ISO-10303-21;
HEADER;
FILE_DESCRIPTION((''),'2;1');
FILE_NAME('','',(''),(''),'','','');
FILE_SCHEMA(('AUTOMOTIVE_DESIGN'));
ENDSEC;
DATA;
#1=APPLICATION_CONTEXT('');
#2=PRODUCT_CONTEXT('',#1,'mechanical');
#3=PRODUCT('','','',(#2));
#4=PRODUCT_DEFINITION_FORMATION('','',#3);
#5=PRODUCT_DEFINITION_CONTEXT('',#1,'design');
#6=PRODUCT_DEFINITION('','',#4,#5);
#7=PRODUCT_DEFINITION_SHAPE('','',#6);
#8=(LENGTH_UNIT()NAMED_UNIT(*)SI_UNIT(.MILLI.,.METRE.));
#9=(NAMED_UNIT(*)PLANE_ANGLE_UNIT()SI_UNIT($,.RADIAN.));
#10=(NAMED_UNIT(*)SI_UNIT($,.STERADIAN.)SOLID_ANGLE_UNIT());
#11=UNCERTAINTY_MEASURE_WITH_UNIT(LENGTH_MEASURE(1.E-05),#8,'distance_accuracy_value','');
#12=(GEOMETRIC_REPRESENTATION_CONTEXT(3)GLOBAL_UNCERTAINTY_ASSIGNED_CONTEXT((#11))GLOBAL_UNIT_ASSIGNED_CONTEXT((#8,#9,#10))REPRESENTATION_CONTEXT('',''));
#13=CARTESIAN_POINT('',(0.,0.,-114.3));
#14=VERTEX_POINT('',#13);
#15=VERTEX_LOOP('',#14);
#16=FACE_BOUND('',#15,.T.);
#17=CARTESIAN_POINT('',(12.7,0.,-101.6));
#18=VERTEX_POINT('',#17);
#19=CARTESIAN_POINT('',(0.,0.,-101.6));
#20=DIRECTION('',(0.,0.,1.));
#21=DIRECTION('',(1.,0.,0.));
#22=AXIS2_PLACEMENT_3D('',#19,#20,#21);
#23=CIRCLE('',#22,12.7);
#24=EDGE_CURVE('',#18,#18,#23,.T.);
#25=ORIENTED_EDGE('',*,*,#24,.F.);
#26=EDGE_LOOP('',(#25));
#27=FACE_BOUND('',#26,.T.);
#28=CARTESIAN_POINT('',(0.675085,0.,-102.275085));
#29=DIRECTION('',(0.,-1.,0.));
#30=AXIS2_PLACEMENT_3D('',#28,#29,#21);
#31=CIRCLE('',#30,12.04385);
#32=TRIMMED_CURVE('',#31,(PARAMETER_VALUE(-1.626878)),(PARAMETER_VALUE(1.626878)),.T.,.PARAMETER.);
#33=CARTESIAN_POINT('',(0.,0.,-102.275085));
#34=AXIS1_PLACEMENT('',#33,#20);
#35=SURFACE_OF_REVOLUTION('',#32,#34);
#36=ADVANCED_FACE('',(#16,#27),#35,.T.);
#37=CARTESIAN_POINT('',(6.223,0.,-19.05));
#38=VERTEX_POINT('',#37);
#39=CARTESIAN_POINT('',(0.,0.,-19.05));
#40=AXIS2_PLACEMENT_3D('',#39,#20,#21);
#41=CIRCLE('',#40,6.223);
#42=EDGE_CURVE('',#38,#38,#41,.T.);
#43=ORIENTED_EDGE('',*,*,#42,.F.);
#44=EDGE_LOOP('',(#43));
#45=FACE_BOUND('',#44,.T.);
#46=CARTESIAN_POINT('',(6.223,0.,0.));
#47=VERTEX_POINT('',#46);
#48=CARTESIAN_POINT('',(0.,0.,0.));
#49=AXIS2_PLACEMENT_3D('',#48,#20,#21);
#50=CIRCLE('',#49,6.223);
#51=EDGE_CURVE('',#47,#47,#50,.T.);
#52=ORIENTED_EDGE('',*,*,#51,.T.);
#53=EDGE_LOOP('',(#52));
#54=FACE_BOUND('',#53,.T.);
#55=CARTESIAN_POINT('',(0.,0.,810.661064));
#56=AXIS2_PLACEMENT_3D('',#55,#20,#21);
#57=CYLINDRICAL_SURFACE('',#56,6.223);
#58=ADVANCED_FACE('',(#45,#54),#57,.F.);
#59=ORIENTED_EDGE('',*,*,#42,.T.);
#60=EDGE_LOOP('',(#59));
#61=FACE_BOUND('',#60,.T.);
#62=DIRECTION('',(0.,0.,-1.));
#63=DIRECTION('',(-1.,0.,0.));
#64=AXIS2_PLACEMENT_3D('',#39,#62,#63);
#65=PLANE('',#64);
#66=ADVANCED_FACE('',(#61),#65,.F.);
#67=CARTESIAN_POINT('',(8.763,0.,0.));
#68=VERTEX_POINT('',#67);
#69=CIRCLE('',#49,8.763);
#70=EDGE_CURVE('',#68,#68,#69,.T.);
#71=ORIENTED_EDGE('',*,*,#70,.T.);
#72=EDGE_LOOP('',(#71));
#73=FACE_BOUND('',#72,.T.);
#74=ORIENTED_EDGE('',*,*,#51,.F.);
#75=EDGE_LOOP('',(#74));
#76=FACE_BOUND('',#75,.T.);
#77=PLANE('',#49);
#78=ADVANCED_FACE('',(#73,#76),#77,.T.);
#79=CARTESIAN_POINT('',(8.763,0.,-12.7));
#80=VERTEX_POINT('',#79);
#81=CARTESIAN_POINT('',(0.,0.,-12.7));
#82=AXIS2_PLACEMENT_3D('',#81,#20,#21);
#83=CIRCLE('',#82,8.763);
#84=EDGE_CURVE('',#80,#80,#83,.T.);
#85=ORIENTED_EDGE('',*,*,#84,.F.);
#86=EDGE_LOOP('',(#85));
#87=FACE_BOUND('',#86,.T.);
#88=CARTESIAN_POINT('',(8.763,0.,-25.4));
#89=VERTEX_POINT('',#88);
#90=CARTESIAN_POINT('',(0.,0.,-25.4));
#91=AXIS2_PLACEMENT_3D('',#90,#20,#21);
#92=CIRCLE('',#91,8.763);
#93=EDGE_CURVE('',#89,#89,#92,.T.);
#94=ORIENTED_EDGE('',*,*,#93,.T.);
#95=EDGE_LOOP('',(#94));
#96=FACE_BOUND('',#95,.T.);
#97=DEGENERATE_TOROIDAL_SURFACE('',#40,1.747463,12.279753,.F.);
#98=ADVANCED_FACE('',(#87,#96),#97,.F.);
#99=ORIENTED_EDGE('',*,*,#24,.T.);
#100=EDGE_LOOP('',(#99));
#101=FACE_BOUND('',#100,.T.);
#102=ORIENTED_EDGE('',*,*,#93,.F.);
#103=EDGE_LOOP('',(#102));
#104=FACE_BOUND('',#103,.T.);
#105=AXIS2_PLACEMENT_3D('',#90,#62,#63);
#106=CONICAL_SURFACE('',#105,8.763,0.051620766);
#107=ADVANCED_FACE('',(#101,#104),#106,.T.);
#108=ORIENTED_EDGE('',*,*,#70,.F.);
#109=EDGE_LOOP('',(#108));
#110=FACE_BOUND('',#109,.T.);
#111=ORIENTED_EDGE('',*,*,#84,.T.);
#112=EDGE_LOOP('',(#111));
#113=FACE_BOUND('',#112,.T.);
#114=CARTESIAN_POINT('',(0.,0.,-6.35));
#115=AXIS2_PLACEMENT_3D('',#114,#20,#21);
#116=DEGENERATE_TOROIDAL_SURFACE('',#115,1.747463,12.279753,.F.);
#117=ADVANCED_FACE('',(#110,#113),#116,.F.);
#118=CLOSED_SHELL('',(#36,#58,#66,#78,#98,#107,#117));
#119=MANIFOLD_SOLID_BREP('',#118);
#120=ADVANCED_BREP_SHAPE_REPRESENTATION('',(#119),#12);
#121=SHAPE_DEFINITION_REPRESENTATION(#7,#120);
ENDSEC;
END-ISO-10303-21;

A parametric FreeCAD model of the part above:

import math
import FreeCAD as App
import Part
import Sketcher

V = App.Vector
Q = App.Units.Quantity

doc = App.newDocument("Part")
body = doc.addObject("PartDesign::Body", "Body")

sketch1 = body.newObject("Sketcher::SketchObject", "Sketch")
sketch1.AttachmentSupport = (doc.getObject("XZ_Plane"), [""])
sketch1.MapMode = "FlatFace"
sketch1.addGeometry(Part.LineSegment(V(8.8, -25.4, 0), V(12.7, -101.6, 0)), False)
sketch1.addGeometry(Part.ArcOfCircle(Part.Circle(V(0.7, -102.3, 0), V(0, 0, 1), 12), math.radians(-93), math.radians(3)), False)
sketch1.addGeometry(Part.LineSegment(V(0, -114.3, 0), V(0, -19.1, 0)), False)
sketch1.addGeometry(Part.LineSegment(V(0, -19.1, 0), V(6.2, -19.1, 0)), False)
sketch1.addGeometry(Part.LineSegment(V(6.2, -19.1, 0), V(6.2, 0, 0)), False)
sketch1.addGeometry(Part.LineSegment(V(6.2, 0, 0), V(8.8, 0, 0)), False)
sketch1.addGeometry(Part.ArcOfCircle(Part.Circle(V(-1.7, -6.3, 0), V(0, 0, 1), 12.3), math.radians(-31), math.radians(31)), False)
sketch1.addGeometry(Part.ArcOfCircle(Part.Circle(V(-1.7, -19.1, 0), V(0, 0, 1), 12.3), math.radians(-31), math.radians(31)), False)
sketch1.addConstraint(Sketcher.Constraint("Coincident", 0, 2, 1, 2))
sketch1.addConstraint(Sketcher.Constraint("Coincident", 1, 1, 2, 1))
sketch1.addConstraint(Sketcher.Constraint("Coincident", 2, 2, 3, 1))
sketch1.addConstraint(Sketcher.Constraint("Coincident", 3, 2, 4, 1))
sketch1.addConstraint(Sketcher.Constraint("Coincident", 4, 2, 5, 1))
sketch1.addConstraint(Sketcher.Constraint("Coincident", 5, 2, 6, 2))
sketch1.addConstraint(Sketcher.Constraint("Coincident", 6, 1, 7, 2))
sketch1.addConstraint(Sketcher.Constraint("Coincident", 7, 1, 0, 1))
sketch1.addConstraint(Sketcher.Constraint("Vertical", 2))
sketch1.addConstraint(Sketcher.Constraint("Horizontal", 3))
sketch1.addConstraint(Sketcher.Constraint("Vertical", 4))
sketch1.addConstraint(Sketcher.Constraint("Horizontal", 5))
sketch1.addConstraint(Sketcher.Constraint("Equal", 6, 7))
sketch1.addConstraint(Sketcher.Constraint("PointOnObject", 1, 1, -2))
sketch1.addConstraint(Sketcher.Constraint("PointOnObject", 4, 2, -1))
sketch1.addConstraint(Sketcher.Constraint("Horizontal", 7, 3, 2, 2))
sketch1.addConstraint(Sketcher.Constraint("Vertical", 6, 3, 7, 3))
sketch1.addConstraint(Sketcher.Constraint("Vertical", 5, 2, 6, 1))
sketch1.addConstraint(Sketcher.Constraint("Vertical", 6, 1, 7, 1))
sketch1.addConstraint(Sketcher.Constraint("DistanceX", 5, 1, 5, 2, Q("0.1 in")))
sketch1.addConstraint(Sketcher.Constraint("DistanceY", 0, 2, -1, 1, Q("4 in")))
sketch1.addConstraint(Sketcher.Constraint("DistanceY", 7, 1, -1, 1, Q("1 in")))
sketch1.addConstraint(Sketcher.Constraint("DistanceY", 2, 1, 2, 2, Q("3.75 in")))
sketch1.addConstraint(Sketcher.Constraint("DistanceX", -1, 1, 0, 2, Q("0.5 in")))
sketch1.addConstraint(Sketcher.Constraint("DistanceX", 3, 1, 3, 2, Q("0.245 in")))
sketch1.addConstraint(Sketcher.Constraint("Radius", 1, Q("12.04385 mm")))
sketch1.addConstraint(Sketcher.Constraint("Radius", 6, Q("12.279753 mm")))
revolution = body.newObject("PartDesign::Revolution", "Revolution")
revolution.Profile = sketch1
revolution.ReferenceAxis = (sketch1, ["V_Axis"])
revolution.Angle = 360

doc.recompute()
